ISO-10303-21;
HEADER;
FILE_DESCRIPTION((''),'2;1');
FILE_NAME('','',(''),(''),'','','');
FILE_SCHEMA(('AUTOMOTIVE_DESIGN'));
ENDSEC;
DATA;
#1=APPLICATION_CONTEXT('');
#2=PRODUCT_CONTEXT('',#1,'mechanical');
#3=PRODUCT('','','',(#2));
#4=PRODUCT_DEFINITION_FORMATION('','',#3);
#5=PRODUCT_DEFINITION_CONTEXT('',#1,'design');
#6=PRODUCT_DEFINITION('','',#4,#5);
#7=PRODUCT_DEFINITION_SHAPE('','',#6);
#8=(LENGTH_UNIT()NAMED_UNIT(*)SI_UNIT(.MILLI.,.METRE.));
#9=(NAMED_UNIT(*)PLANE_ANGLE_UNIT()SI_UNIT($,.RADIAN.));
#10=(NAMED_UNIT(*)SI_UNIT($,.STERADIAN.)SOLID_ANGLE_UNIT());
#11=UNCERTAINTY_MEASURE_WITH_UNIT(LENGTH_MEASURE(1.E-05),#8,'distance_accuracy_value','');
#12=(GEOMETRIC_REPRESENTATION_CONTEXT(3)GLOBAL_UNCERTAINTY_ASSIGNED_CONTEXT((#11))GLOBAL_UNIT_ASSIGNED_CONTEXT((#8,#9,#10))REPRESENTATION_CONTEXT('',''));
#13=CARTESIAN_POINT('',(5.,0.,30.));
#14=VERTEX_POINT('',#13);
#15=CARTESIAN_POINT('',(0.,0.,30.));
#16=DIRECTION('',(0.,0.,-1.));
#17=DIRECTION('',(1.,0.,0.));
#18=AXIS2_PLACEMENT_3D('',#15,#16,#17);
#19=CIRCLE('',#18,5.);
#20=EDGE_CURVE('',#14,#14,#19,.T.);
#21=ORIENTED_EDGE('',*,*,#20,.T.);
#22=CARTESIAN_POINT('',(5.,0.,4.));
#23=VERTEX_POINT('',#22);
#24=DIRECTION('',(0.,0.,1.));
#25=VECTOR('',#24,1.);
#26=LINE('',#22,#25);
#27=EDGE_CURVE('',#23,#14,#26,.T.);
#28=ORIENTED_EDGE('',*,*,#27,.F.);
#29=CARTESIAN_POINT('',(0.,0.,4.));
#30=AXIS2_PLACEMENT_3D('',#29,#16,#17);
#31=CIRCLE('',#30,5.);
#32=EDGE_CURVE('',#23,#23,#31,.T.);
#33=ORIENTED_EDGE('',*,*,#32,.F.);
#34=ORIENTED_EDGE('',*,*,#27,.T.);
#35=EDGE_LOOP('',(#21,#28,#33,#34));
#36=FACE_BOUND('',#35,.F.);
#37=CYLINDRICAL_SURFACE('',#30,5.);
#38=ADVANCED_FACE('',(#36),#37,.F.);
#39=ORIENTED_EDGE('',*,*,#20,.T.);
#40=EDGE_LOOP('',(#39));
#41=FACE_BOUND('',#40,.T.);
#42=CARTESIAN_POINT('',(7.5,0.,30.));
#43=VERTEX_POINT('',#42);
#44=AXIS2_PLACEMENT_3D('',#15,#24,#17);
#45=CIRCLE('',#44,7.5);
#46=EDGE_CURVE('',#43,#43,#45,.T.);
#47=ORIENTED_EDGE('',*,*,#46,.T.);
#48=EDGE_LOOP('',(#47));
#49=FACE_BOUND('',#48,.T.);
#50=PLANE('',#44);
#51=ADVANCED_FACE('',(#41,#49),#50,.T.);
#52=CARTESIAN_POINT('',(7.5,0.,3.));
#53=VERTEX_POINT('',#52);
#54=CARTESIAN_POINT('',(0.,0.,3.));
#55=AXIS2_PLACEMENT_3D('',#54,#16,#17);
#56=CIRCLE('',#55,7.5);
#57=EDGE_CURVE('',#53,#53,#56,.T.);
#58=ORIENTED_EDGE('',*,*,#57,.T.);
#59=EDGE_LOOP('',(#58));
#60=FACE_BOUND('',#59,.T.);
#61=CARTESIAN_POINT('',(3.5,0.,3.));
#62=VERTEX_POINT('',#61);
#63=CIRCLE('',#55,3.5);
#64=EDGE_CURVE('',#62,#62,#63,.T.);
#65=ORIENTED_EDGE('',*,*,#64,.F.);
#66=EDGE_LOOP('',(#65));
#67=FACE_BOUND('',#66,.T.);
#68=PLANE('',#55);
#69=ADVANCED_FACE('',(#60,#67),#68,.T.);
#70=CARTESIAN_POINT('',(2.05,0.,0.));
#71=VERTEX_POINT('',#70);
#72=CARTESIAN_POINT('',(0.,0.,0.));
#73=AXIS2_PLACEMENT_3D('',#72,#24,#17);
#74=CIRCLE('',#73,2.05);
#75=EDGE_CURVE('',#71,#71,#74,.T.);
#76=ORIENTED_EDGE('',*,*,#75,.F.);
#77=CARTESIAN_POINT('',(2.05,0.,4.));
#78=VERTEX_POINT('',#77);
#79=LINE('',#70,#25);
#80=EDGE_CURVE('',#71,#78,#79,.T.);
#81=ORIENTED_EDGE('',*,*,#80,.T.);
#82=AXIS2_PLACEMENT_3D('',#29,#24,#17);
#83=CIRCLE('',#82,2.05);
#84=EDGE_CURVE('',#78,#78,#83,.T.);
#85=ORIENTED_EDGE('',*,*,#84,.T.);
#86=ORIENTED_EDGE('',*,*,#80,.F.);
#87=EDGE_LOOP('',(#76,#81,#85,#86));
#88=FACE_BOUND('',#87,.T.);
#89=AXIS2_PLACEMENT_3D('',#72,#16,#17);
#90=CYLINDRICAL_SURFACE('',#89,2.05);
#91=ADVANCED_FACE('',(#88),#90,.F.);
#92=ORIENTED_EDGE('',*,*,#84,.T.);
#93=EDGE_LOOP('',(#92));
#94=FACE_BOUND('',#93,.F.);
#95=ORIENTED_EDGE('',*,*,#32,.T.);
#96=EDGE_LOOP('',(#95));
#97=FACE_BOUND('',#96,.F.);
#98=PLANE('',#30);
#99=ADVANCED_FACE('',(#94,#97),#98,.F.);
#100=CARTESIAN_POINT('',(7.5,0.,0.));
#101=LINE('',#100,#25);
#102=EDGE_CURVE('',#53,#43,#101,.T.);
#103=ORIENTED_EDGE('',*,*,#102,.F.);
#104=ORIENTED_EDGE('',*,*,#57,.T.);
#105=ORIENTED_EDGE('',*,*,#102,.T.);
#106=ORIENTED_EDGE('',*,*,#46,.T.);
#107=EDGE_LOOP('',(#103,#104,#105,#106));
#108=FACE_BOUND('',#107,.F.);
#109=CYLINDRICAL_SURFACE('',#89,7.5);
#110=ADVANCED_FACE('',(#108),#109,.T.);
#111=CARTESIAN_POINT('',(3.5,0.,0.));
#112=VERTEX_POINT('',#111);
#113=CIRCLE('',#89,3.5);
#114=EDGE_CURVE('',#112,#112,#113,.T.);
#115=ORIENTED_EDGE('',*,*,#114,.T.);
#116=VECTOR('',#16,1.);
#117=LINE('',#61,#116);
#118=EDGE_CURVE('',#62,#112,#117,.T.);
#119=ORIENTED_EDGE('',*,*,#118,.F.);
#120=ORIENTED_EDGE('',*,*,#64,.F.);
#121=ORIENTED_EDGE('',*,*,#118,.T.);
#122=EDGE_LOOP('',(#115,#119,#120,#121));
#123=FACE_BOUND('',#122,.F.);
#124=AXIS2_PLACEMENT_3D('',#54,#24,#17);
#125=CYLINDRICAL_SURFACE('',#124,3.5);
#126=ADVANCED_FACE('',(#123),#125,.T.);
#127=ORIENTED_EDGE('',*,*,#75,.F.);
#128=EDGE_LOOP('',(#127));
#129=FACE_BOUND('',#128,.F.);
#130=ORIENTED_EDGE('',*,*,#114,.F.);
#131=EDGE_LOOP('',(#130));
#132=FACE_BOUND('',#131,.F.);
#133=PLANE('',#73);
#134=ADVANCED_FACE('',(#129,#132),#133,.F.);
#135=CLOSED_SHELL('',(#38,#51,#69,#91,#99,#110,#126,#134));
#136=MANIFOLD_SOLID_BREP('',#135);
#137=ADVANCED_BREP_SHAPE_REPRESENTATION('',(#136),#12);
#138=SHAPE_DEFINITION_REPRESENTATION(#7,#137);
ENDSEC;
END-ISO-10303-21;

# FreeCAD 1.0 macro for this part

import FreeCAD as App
import Part
import Sketcher

V = App.Vector

doc = App.newDocument("Part")
body = doc.addObject("PartDesign::Body", "Body")

sketch1 = doc.addObject("Sketcher::SketchObject", "Sketch")
body.addObject(sketch1)
sketch1.AttachmentSupport = (doc.XY_Plane, [""])
sketch1.MapMode = "FlatFace"
sketch1.addGeometry(Part.Circle(V(0, 0, 0), V(0, 0, 1), 7.5), False)
sketch1.addConstraint([
    Sketcher.Constraint("Coincident", 0, 3, -1, 1),
    Sketcher.Constraint("Diameter", 0, 15.0),
])
pad1 = doc.addObject("PartDesign::Pad", "Pad")
body.addObject(pad1)
pad1.Profile = sketch1
pad1.Length = 30

sketch2 = doc.addObject("Sketcher::SketchObject", "Sketch001")
body.addObject(sketch2)
sketch2.AttachmentSupport = (doc.XY_Plane, [""])
sketch2.MapMode = "FlatFace"
sketch2.addGeometry(Part.Circle(V(0, 0, 0), V(0, 0, 1), 2.05), False)
sketch2.addConstraint([
    Sketcher.Constraint("Coincident", 0, 3, -1, 1),
    Sketcher.Constraint("Diameter", 0, 4.1),
])
pocket1 = doc.addObject("PartDesign::Pocket", "Pocket")
body.addObject(pocket1)
pocket1.Profile = sketch2
pocket1.Length = 4
pocket1.Reversed = True

sketch3 = doc.addObject("Sketcher::SketchObject", "Sketch002")
body.addObject(sketch3)
sketch3.AttachmentSupport = (doc.XY_Plane, [""])
sketch3.MapMode = "FlatFace"
sketch3.AttachmentOffset = App.Placement(V(0, 0, 4), App.Rotation())
sketch3.addGeometry(Part.Circle(V(0, 0, 0), V(0, 0, 1), 5), False)
sketch3.addConstraint([
    Sketcher.Constraint("Coincident", 0, 3, -1, 1),
    Sketcher.Constraint("Diameter", 0, 10.0),
])
pocket2 = doc.addObject("PartDesign::Pocket", "Pocket001")
body.addObject(pocket2)
pocket2.Profile = sketch3
pocket2.Type = "ThroughAll"
pocket2.Reversed = True

sketch4 = doc.addObject("Sketcher::SketchObject", "Sketch003")
body.addObject(sketch4)
sketch4.AttachmentSupport = (doc.XY_Plane, [""])
sketch4.MapMode = "FlatFace"
sketch4.AttachmentOffset = App.Placement(V(0, 0, 3), App.Rotation())
sketch4.addGeometry([
    Part.Circle(V(0, 0, 0), V(0, 0, 1), 7.5),
    Part.Circle(V(0, 0, 0), V(0, 0, 1), 3.5),
], False)
sketch4.addConstraint([
    Sketcher.Constraint("Coincident", 0, 3, -1, 1),
    Sketcher.Constraint("Coincident", 1, 3, -1, 1),
    Sketcher.Constraint("Diameter", 0, 15.0),
    Sketcher.Constraint("Diameter", 1, 7.0),
])
pocket3 = doc.addObject("PartDesign::Pocket", "Pocket002")
body.addObject(pocket3)
pocket3.Profile = sketch4
pocket3.Type = "ThroughAll"

doc.recompute()
